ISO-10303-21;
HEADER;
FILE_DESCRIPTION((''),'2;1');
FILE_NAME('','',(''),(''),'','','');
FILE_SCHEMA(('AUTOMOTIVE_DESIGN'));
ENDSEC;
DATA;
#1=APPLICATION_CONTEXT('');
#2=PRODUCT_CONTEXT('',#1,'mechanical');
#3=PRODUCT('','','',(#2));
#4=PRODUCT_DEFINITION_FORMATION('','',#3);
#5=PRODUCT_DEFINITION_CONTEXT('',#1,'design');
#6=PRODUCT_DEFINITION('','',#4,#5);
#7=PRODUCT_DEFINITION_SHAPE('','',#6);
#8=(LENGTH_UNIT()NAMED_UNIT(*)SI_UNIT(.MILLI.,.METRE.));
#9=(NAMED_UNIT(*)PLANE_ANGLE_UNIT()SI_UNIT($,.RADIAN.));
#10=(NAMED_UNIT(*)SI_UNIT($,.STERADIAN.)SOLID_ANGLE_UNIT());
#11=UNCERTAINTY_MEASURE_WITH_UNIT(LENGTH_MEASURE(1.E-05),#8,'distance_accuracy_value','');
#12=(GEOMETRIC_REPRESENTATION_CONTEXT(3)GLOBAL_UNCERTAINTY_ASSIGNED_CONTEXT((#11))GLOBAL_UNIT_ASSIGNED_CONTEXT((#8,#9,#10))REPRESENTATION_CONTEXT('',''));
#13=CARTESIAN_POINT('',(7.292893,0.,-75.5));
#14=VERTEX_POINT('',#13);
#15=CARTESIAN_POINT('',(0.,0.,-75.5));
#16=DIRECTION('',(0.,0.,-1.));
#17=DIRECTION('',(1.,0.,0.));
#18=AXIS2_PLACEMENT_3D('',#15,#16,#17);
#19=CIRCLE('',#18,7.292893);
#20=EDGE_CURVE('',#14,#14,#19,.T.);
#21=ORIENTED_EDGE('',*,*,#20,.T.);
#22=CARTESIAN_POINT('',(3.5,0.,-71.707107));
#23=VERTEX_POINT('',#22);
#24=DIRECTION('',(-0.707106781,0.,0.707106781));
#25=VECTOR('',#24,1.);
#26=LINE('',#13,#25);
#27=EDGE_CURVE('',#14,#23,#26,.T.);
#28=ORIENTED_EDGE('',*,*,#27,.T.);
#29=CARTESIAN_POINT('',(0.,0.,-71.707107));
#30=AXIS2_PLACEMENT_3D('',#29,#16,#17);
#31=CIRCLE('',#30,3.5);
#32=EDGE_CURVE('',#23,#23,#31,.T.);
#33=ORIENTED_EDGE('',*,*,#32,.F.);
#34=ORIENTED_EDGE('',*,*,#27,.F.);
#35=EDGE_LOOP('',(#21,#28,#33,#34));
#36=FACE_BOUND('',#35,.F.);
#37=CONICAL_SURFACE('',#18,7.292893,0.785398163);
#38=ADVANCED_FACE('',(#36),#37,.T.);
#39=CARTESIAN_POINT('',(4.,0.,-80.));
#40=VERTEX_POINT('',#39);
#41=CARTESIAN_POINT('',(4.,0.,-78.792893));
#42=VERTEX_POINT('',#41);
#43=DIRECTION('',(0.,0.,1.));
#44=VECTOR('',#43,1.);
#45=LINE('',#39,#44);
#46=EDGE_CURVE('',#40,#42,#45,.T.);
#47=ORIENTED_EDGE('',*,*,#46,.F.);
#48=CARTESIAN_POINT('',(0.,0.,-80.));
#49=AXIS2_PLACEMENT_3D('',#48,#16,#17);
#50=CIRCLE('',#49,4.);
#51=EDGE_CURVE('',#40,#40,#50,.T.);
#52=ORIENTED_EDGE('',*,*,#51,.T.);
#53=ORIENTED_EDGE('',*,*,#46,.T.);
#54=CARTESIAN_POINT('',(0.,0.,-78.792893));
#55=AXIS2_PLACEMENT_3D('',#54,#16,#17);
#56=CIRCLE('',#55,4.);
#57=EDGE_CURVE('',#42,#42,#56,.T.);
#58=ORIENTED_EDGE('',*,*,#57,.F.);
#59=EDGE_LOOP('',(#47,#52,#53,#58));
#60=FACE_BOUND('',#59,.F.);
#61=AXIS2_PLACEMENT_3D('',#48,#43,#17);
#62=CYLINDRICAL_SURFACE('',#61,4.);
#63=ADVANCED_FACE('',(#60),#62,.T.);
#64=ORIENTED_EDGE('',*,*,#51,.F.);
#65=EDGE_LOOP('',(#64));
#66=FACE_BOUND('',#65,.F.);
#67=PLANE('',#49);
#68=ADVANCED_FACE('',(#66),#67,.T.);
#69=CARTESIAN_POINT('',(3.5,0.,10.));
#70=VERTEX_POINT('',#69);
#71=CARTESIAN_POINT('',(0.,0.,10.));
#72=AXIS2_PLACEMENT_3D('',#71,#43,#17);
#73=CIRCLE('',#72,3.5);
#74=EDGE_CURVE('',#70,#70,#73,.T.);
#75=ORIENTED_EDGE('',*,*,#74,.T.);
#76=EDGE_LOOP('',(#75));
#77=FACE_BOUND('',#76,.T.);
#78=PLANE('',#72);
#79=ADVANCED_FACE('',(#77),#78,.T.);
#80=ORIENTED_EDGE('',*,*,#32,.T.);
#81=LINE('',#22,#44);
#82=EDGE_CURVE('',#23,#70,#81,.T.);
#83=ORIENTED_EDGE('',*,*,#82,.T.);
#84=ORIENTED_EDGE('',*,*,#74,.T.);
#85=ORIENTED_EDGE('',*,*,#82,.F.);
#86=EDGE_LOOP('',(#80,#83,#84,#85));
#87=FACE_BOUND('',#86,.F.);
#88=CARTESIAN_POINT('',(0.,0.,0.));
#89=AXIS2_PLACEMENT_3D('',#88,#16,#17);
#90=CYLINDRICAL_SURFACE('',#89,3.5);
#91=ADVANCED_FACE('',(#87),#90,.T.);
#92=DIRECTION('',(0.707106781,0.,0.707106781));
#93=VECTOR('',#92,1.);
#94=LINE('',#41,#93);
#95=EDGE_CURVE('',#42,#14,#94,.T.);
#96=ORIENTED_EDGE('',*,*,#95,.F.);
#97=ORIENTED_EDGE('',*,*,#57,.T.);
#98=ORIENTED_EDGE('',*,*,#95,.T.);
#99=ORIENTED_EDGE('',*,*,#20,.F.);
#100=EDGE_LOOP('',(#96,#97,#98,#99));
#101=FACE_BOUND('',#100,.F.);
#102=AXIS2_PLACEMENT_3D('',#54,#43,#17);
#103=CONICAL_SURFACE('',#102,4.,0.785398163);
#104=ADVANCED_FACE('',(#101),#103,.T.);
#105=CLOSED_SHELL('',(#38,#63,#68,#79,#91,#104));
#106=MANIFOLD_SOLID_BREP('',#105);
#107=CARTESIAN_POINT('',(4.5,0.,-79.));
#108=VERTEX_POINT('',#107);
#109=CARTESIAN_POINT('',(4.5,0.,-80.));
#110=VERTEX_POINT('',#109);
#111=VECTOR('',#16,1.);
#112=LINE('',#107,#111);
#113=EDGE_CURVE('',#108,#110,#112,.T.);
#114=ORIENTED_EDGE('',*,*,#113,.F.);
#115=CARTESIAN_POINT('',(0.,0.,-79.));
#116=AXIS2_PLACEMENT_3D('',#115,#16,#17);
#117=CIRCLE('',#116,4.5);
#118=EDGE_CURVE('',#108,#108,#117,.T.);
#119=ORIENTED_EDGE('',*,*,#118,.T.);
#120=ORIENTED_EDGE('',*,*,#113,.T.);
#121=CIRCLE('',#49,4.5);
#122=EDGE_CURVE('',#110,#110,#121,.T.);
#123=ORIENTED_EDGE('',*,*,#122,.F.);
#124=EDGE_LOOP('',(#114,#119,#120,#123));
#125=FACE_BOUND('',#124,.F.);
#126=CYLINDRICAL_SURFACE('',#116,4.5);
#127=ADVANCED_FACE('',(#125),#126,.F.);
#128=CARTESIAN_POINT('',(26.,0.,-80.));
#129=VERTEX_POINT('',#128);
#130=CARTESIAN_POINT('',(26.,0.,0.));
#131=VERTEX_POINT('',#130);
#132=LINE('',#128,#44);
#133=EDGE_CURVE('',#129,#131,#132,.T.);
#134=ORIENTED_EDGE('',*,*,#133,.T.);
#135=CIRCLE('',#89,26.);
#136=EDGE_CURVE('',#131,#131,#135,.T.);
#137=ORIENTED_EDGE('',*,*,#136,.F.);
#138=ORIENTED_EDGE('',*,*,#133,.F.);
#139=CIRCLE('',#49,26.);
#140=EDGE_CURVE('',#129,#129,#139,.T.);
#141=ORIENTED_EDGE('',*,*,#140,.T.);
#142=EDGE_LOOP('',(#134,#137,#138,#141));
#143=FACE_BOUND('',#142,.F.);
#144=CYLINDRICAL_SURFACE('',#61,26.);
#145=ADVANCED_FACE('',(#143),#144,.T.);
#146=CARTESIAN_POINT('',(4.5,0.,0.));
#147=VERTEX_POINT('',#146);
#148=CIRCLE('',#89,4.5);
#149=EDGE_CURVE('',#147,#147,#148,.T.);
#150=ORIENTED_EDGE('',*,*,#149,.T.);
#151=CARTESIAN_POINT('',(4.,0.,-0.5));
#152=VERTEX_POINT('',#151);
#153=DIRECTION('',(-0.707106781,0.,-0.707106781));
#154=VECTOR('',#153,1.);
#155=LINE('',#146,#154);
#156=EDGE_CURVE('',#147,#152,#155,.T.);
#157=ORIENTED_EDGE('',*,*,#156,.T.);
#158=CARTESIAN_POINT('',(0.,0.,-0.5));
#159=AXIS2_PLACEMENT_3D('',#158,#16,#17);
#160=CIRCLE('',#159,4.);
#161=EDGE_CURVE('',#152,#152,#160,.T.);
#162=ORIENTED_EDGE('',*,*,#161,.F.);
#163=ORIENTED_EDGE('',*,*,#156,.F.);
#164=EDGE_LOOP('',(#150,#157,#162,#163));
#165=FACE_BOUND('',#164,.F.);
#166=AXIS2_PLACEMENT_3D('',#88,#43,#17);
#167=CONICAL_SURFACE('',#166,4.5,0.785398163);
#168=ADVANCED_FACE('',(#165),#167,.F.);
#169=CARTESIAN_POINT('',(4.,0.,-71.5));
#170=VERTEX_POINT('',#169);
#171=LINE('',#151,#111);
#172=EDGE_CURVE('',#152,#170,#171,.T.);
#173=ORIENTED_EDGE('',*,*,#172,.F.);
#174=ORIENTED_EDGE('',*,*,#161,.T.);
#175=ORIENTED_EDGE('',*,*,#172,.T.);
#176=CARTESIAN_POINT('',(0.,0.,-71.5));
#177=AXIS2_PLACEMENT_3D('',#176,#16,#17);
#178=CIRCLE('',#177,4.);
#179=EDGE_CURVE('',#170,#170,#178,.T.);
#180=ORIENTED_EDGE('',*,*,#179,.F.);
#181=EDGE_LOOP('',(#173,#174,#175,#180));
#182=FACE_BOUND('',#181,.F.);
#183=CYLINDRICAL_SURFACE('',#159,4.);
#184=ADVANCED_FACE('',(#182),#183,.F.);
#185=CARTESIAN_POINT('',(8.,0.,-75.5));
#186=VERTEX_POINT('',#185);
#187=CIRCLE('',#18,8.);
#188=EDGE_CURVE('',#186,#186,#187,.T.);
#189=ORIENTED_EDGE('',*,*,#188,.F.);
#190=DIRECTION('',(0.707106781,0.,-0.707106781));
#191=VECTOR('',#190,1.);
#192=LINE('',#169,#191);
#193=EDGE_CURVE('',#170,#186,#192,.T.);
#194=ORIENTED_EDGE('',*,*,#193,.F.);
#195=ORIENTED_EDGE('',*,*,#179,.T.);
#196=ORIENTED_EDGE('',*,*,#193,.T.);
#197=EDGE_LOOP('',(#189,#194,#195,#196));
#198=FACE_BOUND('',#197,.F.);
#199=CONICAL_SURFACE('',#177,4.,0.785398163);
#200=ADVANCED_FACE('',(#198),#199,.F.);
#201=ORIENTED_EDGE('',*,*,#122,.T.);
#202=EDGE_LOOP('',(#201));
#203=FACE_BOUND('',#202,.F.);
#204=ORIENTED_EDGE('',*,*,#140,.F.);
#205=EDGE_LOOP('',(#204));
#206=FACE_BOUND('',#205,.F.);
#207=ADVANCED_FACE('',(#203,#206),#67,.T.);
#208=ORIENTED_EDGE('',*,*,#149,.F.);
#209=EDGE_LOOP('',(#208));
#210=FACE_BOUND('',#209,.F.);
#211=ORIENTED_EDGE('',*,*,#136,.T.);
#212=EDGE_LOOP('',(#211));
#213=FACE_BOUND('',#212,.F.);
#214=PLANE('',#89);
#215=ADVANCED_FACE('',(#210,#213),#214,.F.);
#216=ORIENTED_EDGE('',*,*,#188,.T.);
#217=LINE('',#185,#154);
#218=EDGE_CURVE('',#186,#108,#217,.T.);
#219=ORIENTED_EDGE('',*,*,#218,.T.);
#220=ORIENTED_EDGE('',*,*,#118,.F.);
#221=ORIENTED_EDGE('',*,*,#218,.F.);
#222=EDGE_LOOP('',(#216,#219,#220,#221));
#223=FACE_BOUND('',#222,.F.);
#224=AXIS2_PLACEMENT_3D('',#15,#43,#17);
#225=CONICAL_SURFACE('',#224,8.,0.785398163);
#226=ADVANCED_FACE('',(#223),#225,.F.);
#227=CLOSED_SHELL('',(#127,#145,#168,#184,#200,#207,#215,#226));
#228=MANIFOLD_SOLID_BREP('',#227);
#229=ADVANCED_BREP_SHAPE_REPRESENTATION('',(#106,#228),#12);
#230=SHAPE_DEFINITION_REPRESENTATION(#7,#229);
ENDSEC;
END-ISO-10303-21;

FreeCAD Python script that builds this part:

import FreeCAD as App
import Part
import Sketcher
Q = App.Units.Quantity


def add_polygon(sketch, points):
    """Adds a closed chain of lines whose ends are joined by coincident constraints."""
    first, n = sketch.GeometryCount, len(points)
    for a, b in zip(points, points[1:] + points[:1]):
        sketch.addGeometry(Part.LineSegment(App.Vector(*a, 0), App.Vector(*b, 0)), False)
    for i in range(n):
        sketch.addConstraint(Sketcher.Constraint("Coincident", first + i, 2, first + (i + 1) % n, 1))

doc = App.newDocument("Part")
body = doc.addObject("PartDesign::Body", "Body")

sketch1 = body.newObject("Sketcher::SketchObject", "Sketch")
sketch1.AttachmentSupport = (doc.getObject("XZ_Plane"), [""])
sketch1.MapMode = "FlatFace"
add_polygon(sketch1, [(26, 0), (4.5, 0), (4, -0.5), (4, -71.5), (8, -75.5), (4.5, -79), (4.5, -80), (26, -80)])
sketch1.addConstraint(Sketcher.Constraint("Horizontal", 0))
sketch1.addConstraint(Sketcher.Constraint("Vertical", 2))
sketch1.addConstraint(Sketcher.Constraint("Vertical", 5))
sketch1.addConstraint(Sketcher.Constraint("Horizontal", 6))
sketch1.addConstraint(Sketcher.Constraint("Vertical", 7))
sketch1.addConstraint(Sketcher.Constraint("PointOnObject", 0, 2, -1))
sketch1.addConstraint(Sketcher.Constraint("Perpendicular", 1, 3))
sketch1.addConstraint(Sketcher.Constraint("Perpendicular", 3, 4))
sketch1.addConstraint(Sketcher.Constraint("Vertical", 0, 2, 4, 2))
sketch1.addConstraint(Sketcher.Constraint("DistanceY", 2, 2, 2, 1, 71.0))
sketch1.addConstraint(Sketcher.Constraint("DistanceY", 5, 2, 5, 1, 1.0))
sketch1.addConstraint(Sketcher.Constraint("DistanceY", 7, 1, 7, 2, 80.0))
sketch1.addConstraint(Sketcher.Constraint("Angle", 1, Q("-135 deg")))
sketch1.addConstraint(Sketcher.Constraint("DistanceX", 0, 2, 0, 1, 21.5))
sketch1.addConstraint(Sketcher.Constraint("DistanceX", -1, 1, 1, 2, 4.0))
sketch1.addConstraint(Sketcher.Constraint("DistanceX", -1, 1, 6, 2, 26.0))
revolution = body.newObject("PartDesign::Revolution", "Revolution")
revolution.Profile = sketch1
revolution.ReferenceAxis = (sketch1, ["V_Axis"])
revolution.Angle = 360
body2 = doc.addObject("PartDesign::Body", "Body001")

sketch2 = body2.newObject("Sketcher::SketchObject", "Sketch001")
sketch2.AttachmentSupport = (doc.getObject("XZ_Plane001"), [""])
sketch2.MapMode = "FlatFace"
add_polygon(sketch2, [(3.5, -71.7), (3.5, 0), (0, 0), (0, -80), (4, -80), (4, -78.8), (7.3, -75.5)])
sketch2.addConstraint(Sketcher.Constraint("Vertical", 0))
sketch2.addConstraint(Sketcher.Constraint("Horizontal", 1))
sketch2.addConstraint(Sketcher.Constraint("Vertical", 2))
sketch2.addConstraint(Sketcher.Constraint("Horizontal", 3))
sketch2.addConstraint(Sketcher.Constraint("Vertical", 4))
sketch2.addConstraint(Sketcher.Constraint("Coincident", 1, 2, -1, 1))
sketch2.addConstraint(Sketcher.Constraint("Perpendicular", 5, 6))
sketch2.addConstraint(Sketcher.Constraint("DistanceX", 3, 1, 3, 2, 4.0))
sketch2.addConstraint(Sketcher.Constraint("DistanceY", 2, 2, 2, 1, 80.0))
sketch2.addConstraint(Sketcher.Constraint("Angle", 5, Q("45 deg")))
sketch2.addConstraint(Sketcher.Constraint("DistanceX", 1, 2, 1, 1, 3.5))
sketch2.addConstraint(Sketcher.Constraint("DistanceY", 5, 2, -1, 1, 75.5))
sketch2.addConstraint(Sketcher.Constraint("Distance", 6, 5.363961))
revolution2 = body2.newObject("PartDesign::Revolution", "Revolution001")
revolution2.Profile = sketch2
revolution2.ReferenceAxis = (sketch2, ["V_Axis"])
revolution2.Angle = 360

sketch3 = body2.newObject("Sketcher::SketchObject", "Sketch002")
sketch3.AttachmentSupport = (doc.getObject("XY_Plane001"), [""])
sketch3.MapMode = "FlatFace"
sketch3.addGeometry(Part.Circle(App.Vector(0, 0, 0), App.Vector(0, 0, 1), 3.5), False)
sketch3.addConstraint(Sketcher.Constraint("Coincident", 0, 3, -1, 1))
sketch3.addConstraint(Sketcher.Constraint("Diameter", 0, 7.0))
pad1 = body2.newObject("PartDesign::Pad", "Pad")
pad1.Profile = sketch3
pad1.Length = 10

doc.recompute()
